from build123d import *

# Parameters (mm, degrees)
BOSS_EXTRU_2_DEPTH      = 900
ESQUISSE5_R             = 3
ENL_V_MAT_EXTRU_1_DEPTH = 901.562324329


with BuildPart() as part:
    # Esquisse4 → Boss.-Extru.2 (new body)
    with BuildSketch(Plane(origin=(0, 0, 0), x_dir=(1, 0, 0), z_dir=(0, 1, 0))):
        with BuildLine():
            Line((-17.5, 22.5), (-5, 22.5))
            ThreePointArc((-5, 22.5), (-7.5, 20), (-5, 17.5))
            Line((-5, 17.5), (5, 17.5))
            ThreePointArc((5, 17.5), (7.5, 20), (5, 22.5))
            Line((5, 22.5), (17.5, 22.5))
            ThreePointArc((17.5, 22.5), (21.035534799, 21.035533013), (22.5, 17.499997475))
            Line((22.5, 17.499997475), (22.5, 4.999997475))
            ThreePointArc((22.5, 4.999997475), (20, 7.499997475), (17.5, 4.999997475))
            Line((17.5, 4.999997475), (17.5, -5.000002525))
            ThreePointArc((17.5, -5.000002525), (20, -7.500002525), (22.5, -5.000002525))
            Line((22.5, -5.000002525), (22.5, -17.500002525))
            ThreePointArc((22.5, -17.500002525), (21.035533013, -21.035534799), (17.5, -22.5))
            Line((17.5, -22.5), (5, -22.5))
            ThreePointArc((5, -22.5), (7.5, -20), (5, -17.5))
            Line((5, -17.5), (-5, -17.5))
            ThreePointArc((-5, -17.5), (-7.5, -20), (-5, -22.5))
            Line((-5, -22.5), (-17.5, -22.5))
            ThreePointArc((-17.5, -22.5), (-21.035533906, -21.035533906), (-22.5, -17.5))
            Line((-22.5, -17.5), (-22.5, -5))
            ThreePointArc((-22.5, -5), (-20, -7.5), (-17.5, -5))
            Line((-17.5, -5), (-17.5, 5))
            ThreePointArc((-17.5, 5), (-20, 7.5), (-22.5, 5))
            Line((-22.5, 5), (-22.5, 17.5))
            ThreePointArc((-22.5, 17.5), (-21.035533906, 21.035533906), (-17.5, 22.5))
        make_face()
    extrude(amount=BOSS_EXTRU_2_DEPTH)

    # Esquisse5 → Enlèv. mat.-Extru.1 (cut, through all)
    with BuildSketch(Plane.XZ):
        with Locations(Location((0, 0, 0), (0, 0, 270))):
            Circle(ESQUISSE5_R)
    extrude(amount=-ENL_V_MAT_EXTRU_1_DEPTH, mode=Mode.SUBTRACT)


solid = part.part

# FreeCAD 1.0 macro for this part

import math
import FreeCAD as App
import Part
import Sketcher

doc = App.newDocument("Part")
body = doc.addObject("PartDesign::Body", "Body")

# Sketch on XZ plane
sketch1 = doc.addObject("Sketcher::SketchObject", "Sketch")
body.addObject(sketch1)
sketch1.AttachmentSupport = (doc.XZ_Plane, [""])
sketch1.MapMode = "FlatFace"
sketch1.addGeometry(Part.LineSegment(App.Vector(-5, -22.5, 0), App.Vector(-17.5, -22.5, 0)), False)
sketch1.addGeometry(Part.ArcOfCircle(Part.Circle(App.Vector(-17.5, -17.5, 0), App.Vector(0, 0, 1), 5), math.radians(180), math.radians(270)), False)
sketch1.addGeometry(Part.LineSegment(App.Vector(-22.5, -17.5, 0), App.Vector(-22.5, -5, 0)), False)
sketch1.addGeometry(Part.ArcOfCircle(Part.Circle(App.Vector(-20, -5, 0), App.Vector(0, 0, 1), 2.5), math.radians(180), math.radians(360)), False)
sketch1.addGeometry(Part.LineSegment(App.Vector(-17.5, -5, 0), App.Vector(-17.5, 5, 0)), False)
sketch1.addGeometry(Part.ArcOfCircle(Part.Circle(App.Vector(-20, 5, 0), App.Vector(0, 0, 1), 2.5), math.radians(0), math.radians(180)), False)
sketch1.addGeometry(Part.LineSegment(App.Vector(-22.5, 5, 0), App.Vector(-22.5, 17.5, 0)), False)
sketch1.addGeometry(Part.ArcOfCircle(Part.Circle(App.Vector(-17.5, 17.5, 0), App.Vector(0, 0, 1), 5), math.radians(90), math.radians(180)), False)
sketch1.addGeometry(Part.LineSegment(App.Vector(-17.5, 22.5, 0), App.Vector(-5, 22.5, 0)), False)
sketch1.addGeometry(Part.ArcOfCircle(Part.Circle(App.Vector(-5, 20, 0), App.Vector(0, 0, 1), 2.5), math.radians(90), math.radians(270)), False)
sketch1.addGeometry(Part.LineSegment(App.Vector(-5, 17.5, 0), App.Vector(5, 17.5, 0)), False)
sketch1.addGeometry(Part.ArcOfCircle(Part.Circle(App.Vector(5, 20, 0), App.Vector(0, 0, 1), 2.5), math.radians(-90), math.radians(90)), False)
sketch1.addGeometry(Part.LineSegment(App.Vector(5, 22.5, 0), App.Vector(17.5, 22.5, 0)), False)
sketch1.addGeometry(Part.ArcOfCircle(Part.Circle(App.Vector(17.5, 17.5, 0), App.Vector(0, 0, 1), 5), math.radians(0), math.radians(90)), False)
sketch1.addGeometry(Part.LineSegment(App.Vector(22.5, 17.5, 0), App.Vector(22.5, 5, 0)), False)
sketch1.addGeometry(Part.ArcOfCircle(Part.Circle(App.Vector(20, 5, 0), App.Vector(0, 0, 1), 2.5), math.radians(0), math.radians(180)), False)
sketch1.addGeometry(Part.LineSegment(App.Vector(17.5, 5, 0), App.Vector(17.5, -5, 0)), False)
sketch1.addGeometry(Part.ArcOfCircle(Part.Circle(App.Vector(20, -5, 0), App.Vector(0, 0, 1), 2.5), math.radians(180), math.radians(360)), False)
sketch1.addGeometry(Part.LineSegment(App.Vector(22.5, -5, 0), App.Vector(22.5, -17.5, 0)), False)
sketch1.addGeometry(Part.ArcOfCircle(Part.Circle(App.Vector(17.5, -17.5, 0), App.Vector(0, 0, 1), 5), math.radians(-90), math.radians(0)), False)
sketch1.addGeometry(Part.LineSegment(App.Vector(17.5, -22.5, 0), App.Vector(5, -22.5, 0)), False)
sketch1.addGeometry(Part.ArcOfCircle(Part.Circle(App.Vector(5, -20, 0), App.Vector(0, 0, 1), 2.5), math.radians(-90), math.radians(90)), False)
sketch1.addGeometry(Part.LineSegment(App.Vector(5, -17.5, 0), App.Vector(-5, -17.5, 0)), False)
sketch1.addGeometry(Part.ArcOfCircle(Part.Circle(App.Vector(-5, -20, 0), App.Vector(0, 0, 1), 2.5), math.radians(90), math.radians(270)), False)
sketch1.addConstraint(Sketcher.Constraint("Tangent", 0, 2, 1, 2))
sketch1.addConstraint(Sketcher.Constraint("Tangent", 1, 1, 2, 1))
sketch1.addConstraint(Sketcher.Constraint("Tangent", 2, 2, 3, 1))
sketch1.addConstraint(Sketcher.Constraint("Tangent", 3, 2, 4, 1))
sketch1.addConstraint(Sketcher.Constraint("Tangent", 4, 2, 5, 1))
sketch1.addConstraint(Sketcher.Constraint("Tangent", 5, 2, 6, 1))
sketch1.addConstraint(Sketcher.Constraint("Tangent", 6, 2, 7, 2))
sketch1.addConstraint(Sketcher.Constraint("Tangent", 7, 1, 8, 1))
sketch1.addConstraint(Sketcher.Constraint("Tangent", 8, 2, 9, 1))
sketch1.addConstraint(Sketcher.Constraint("Tangent", 9, 2, 10, 1))
sketch1.addConstraint(Sketcher.Constraint("Tangent", 10, 2, 11, 1))
sketch1.addConstraint(Sketcher.Constraint("Tangent", 11, 2, 12, 1))
sketch1.addConstraint(Sketcher.Constraint("Tangent", 12, 2, 13, 2))
sketch1.addConstraint(Sketcher.Constraint("Tangent", 13, 1, 14, 1))
sketch1.addConstraint(Sketcher.Constraint("Tangent", 14, 2, 15, 1))
sketch1.addConstraint(Sketcher.Constraint("Tangent", 15, 2, 16, 1))
sketch1.addConstraint(Sketcher.Constraint("Tangent", 16, 2, 17, 1))
sketch1.addConstraint(Sketcher.Constraint("Tangent", 17, 2, 18, 1))
sketch1.addConstraint(Sketcher.Constraint("Tangent", 18, 2, 19, 2))
sketch1.addConstraint(Sketcher.Constraint("Tangent", 19, 1, 20, 1))
sketch1.addConstraint(Sketcher.Constraint("Tangent", 20, 2, 21, 1))
sketch1.addConstraint(Sketcher.Constraint("Tangent", 21, 2, 22, 1))
sketch1.addConstraint(Sketcher.Constraint("Tangent", 22, 2, 23, 1))
sketch1.addConstraint(Sketcher.Constraint("Tangent", 23, 2, 0, 1))
sketch1.addConstraint(Sketcher.Constraint("Horizontal", 0))
sketch1.addConstraint(Sketcher.Constraint("Vertical", 2))
sketch1.addConstraint(Sketcher.Constraint("Vertical", 4))
sketch1.addConstraint(Sketcher.Constraint("Vertical", 6))
sketch1.addConstraint(Sketcher.Constraint("Horizontal", 8))
sketch1.addConstraint(Sketcher.Constraint("Horizontal", 10))
sketch1.addConstraint(Sketcher.Constraint("Horizontal", 12))
sketch1.addConstraint(Sketcher.Constraint("Vertical", 14))
sketch1.addConstraint(Sketcher.Constraint("Vertical", 16))
sketch1.addConstraint(Sketcher.Constraint("Vertical", 18))
sketch1.addConstraint(Sketcher.Constraint("Horizontal", 20))
sketch1.addConstraint(Sketcher.Constraint("Horizontal", 22))
sketch1.addConstraint(Sketcher.Constraint("Equal", 3, 5))
sketch1.addConstraint(Sketcher.Constraint("Equal", 1, 7))
sketch1.addConstraint(Sketcher.Constraint("Equal", 5, 9))
sketch1.addConstraint(Sketcher.Constraint("Equal", 9, 11))
sketch1.addConstraint(Sketcher.Constraint("Equal", 7, 13))
sketch1.addConstraint(Sketcher.Constraint("Equal", 11, 15))
sketch1.addConstraint(Sketcher.Constraint("Equal", 15, 17))
sketch1.addConstraint(Sketcher.Constraint("Equal", 13, 19))
sketch1.addConstraint(Sketcher.Constraint("Equal", 17, 21))
sketch1.addConstraint(Sketcher.Constraint("Equal", 21, 23))
sketch1.addConstraint(Sketcher.Constraint("Symmetric", 1, 3, 13, 3, -1, 1))
sketch1.addConstraint(Sketcher.Constraint("Horizontal", 6, 2, 9, 2))
sketch1.addConstraint(Sketcher.Constraint("Vertical", 11, 3, 21, 3))
sketch1.addConstraint(Sketcher.Constraint("Vertical", 9, 3, 23, 3))
sketch1.addConstraint(Sketcher.Constraint("Equal", 8, 12))
sketch1.addConstraint(Sketcher.Constraint("Equal", 20, 2))
sketch1.addConstraint(Sketcher.Constraint("Equal", 22, 4))
sketch1.addConstraint(Sketcher.Constraint("Equal", 2, 6))
sketch1.addConstraint(Sketcher.Constraint("Equal", 6, 14))
sketch1.addConstraint(Sketcher.Constraint("Equal", 4, 16))
sketch1.addConstraint(Sketcher.Constraint("Radius", 1, 5.0))
sketch1.addConstraint(Sketcher.Constraint("DistanceX", 10, 1, 10, 2, 10.0))
sketch1.addConstraint(Sketcher.Constraint("DistanceX", 0, 2, 0, 1, 12.5))
pad1 = doc.addObject("PartDesign::Pad", "Pad")
body.addObject(pad1)
pad1.Profile = sketch1
pad1.Length = 900
pad1.Reversed = True

# Sketch on XZ plane
sketch2 = doc.addObject("Sketcher::SketchObject", "Sketch001")
body.addObject(sketch2)
sketch2.AttachmentSupport = (doc.XZ_Plane, [""])
sketch2.MapMode = "FlatFace"
sketch2.addGeometry(Part.Circle(App.Vector(0, 0, 0), App.Vector(0, 0, 1), 3), False)
sketch2.addConstraint(Sketcher.Constraint("Coincident", 0, 3, -1, 1))
sketch2.addConstraint(Sketcher.Constraint("Diameter", 0, 6.0))
pocket1 = doc.addObject("PartDesign::Pocket", "Pocket")
body.addObject(pocket1)
pocket1.Profile = sketch2
pocket1.Type = "ThroughAll"

doc.recompute()
